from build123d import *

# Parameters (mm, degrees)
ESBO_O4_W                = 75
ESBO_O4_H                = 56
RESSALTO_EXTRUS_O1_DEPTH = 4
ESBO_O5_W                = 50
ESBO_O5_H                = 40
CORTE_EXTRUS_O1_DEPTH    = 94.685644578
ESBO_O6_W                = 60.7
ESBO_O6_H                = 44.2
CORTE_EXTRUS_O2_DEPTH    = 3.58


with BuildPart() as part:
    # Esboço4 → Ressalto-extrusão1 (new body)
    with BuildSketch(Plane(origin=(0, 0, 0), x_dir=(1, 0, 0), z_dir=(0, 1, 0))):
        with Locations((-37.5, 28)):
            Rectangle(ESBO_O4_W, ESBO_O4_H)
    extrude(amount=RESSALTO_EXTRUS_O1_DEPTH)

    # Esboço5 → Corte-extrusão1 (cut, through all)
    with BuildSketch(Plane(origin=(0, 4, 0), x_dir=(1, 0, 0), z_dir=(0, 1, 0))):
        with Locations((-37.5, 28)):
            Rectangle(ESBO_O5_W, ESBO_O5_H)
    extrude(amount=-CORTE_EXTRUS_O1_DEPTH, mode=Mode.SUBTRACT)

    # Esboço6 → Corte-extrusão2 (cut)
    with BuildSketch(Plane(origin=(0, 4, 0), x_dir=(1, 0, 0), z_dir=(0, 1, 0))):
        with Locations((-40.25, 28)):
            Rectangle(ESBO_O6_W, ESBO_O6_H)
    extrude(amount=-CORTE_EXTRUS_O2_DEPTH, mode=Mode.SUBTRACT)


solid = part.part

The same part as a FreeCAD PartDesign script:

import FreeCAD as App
import Part
import Sketcher
from FreeCAD import Vector
Q = App.Units.Quantity


def add_polygon(sketch, points):
    """Adds a closed chain of lines whose ends are joined by coincident constraints."""
    first, n = sketch.GeometryCount, len(points)
    for a, b in zip(points, points[1:] + points[:1]):
        sketch.addGeometry(Part.LineSegment(App.Vector(*a, 0), App.Vector(*b, 0)), False)
    for i in range(n):
        sketch.addConstraint(Sketcher.Constraint("Coincident", first + i, 2, first + (i + 1) % n, 1))

doc = App.newDocument("Part")
body = doc.addObject("PartDesign::Body", "Body")

# Sketch on XZ plane
sketch1 = body.newObject("Sketcher::SketchObject", "Sketch")
sketch1.AttachmentSupport = (doc.getObject("XZ_Plane"), [""])
sketch1.MapMode = "FlatFace"
add_polygon(sketch1, [(-75, -56), (-75, 0), (0, 0), (0, -56)])  # lines 0-3
sketch1.addConstraint([
    Sketcher.Constraint("Vertical", 0),
    Sketcher.Constraint("Horizontal", 1),
    Sketcher.Constraint("Vertical", 2),
    Sketcher.Constraint("Horizontal", 3),
    Sketcher.Constraint("Coincident", 1, 2, -1, 1),
    Sketcher.Constraint("DistanceX", 1, 1, 1, 2, Q("75 mm")),
    Sketcher.Constraint("DistanceY", 0, 1, 0, 2, Q("56 mm")),
])
pad1 = body.newObject("PartDesign::Pad", "Pad")
pad1.Profile = sketch1
pad1.Length = 4
pad1.Reversed = True

# Sketch on XZ plane
sketch2 = body.newObject("Sketcher::SketchObject", "Sketch001")
sketch2.AttachmentSupport = (doc.getObject("XZ_Plane"), [""])
sketch2.MapMode = "FlatFace"
sketch2.AttachmentOffset = App.Placement(Vector(0, 0, -4), App.Rotation())
add_polygon(sketch2, [(-62.5, -48), (-62.5, -8), (-12.5, -8), (-12.5, -48)])  # lines 0-3
sketch2.addConstraint([
    Sketcher.Constraint("Vertical", 0),
    Sketcher.Constraint("Horizontal", 1),
    Sketcher.Constraint("Vertical", 2),
    Sketcher.Constraint("Horizontal", 3),
    Sketcher.Constraint("DistanceX", 1, 1, 1, 2, Q("50 mm")),
    Sketcher.Constraint("DistanceY", 0, 1, 0, 2, Q("40 mm")),
    Sketcher.Constraint("DistanceY", 0, 2, -1, 1, Q("8 mm")),
    Sketcher.Constraint("DistanceX", 0, 2, -1, 1, Q("62.5 mm")),
])
pocket1 = body.newObject("PartDesign::Pocket", "Pocket")
pocket1.Profile = sketch2
pocket1.Type = "ThroughAll"
pocket1.Reversed = True

# Sketch on XZ plane
sketch3 = body.newObject("Sketcher::SketchObject", "Sketch002")
sketch3.AttachmentSupport = (doc.getObject("XZ_Plane"), [""])
sketch3.MapMode = "FlatFace"
sketch3.AttachmentOffset = App.Placement(Vector(0, 0, -4), App.Rotation())
add_polygon(sketch3, [(-70.6, -50.1), (-70.6, -5.9), (-9.9, -5.9), (-9.9, -50.1)])  # lines 0-3
sketch3.addConstraint([
    Sketcher.Constraint("Vertical", 0),
    Sketcher.Constraint("Horizontal", 1),
    Sketcher.Constraint("Vertical", 2),
    Sketcher.Constraint("Horizontal", 3),
    Sketcher.Constraint("DistanceX", 1, 1, 1, 2, Q("60.7 mm")),
    Sketcher.Constraint("DistanceY", 0, 1, 0, 2, Q("44.2 mm")),
    Sketcher.Constraint("DistanceX", 0, 2, -1, 1, Q("70.6 mm")),
    Sketcher.Constraint("DistanceY", 0, 2, -1, 1, Q("5.9 mm")),
])
pocket2 = body.newObject("PartDesign::Pocket", "Pocket001")
pocket2.Profile = sketch3
pocket2.Length = 3.58
pocket2.Reversed = True

doc.recompute()
